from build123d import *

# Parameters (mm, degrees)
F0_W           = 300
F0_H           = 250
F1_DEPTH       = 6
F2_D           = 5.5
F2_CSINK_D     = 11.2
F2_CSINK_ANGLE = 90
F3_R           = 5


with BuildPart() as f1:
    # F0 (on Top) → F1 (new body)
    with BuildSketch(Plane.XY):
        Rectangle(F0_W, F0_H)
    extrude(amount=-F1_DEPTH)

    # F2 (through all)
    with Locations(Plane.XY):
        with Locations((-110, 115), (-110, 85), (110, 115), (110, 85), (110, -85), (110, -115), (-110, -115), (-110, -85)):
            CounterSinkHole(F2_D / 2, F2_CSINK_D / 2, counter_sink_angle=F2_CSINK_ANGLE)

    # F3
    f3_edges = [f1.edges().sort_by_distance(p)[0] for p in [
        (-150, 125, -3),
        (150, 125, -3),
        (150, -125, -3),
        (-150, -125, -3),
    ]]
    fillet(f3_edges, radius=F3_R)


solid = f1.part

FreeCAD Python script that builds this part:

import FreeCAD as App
import Part
import Sketcher
from FreeCAD import Vector


def edges_at(feature, points):
    """Names of the edges that pass closest to the given points."""
    edges = feature.Shape.Edges
    near = lambda p: min(range(len(edges)), key=lambda i: edges[i].distToShape(Part.Vertex(*p))[0])
    return sorted({f"Edge{near(p) + 1}" for p in points})

doc = App.newDocument("Part")
body = doc.addObject("PartDesign::Body", "Body")

# Sketch on XY plane
sketch1 = body.newObject("Sketcher::SketchObject", "Sketch")
sketch1.AttachmentSupport = (doc.getObject("XY_Plane"), [""])
sketch1.MapMode = "FlatFace"
sketch1.addGeometry([
    Part.LineSegment(Vector(-150, 125, 0), Vector(-150, -125, 0)),
    Part.LineSegment(Vector(-150, -125, 0), Vector(150, -125, 0)),
    Part.LineSegment(Vector(150, -125, 0), Vector(150, 125, 0)),
    Part.LineSegment(Vector(150, 125, 0), Vector(-150, 125, 0)),
], False)
sketch1.addConstraint([
    Sketcher.Constraint("Coincident", 0, 2, 1, 1),
    Sketcher.Constraint("Coincident", 1, 2, 2, 1),
    Sketcher.Constraint("Coincident", 2, 2, 3, 1),
    Sketcher.Constraint("Coincident", 3, 2, 0, 1),
    Sketcher.Constraint("Vertical", 0),
    Sketcher.Constraint("Horizontal", 1),
    Sketcher.Constraint("Vertical", 2),
    Sketcher.Constraint("Horizontal", 3),
    Sketcher.Constraint("Symmetric", 0, 2, 2, 2, -1, 1),
    Sketcher.Constraint("DistanceX", 1, 1, 1, 2, 300.0),
    Sketcher.Constraint("DistanceY", 0, 2, 0, 1, 250.0),
])
pad1 = body.newObject("PartDesign::Pad", "Pad")
pad1.Profile = sketch1
pad1.Length = 6
pad1.Reversed = True

# Sketch on XY plane
sketch2 = body.newObject("Sketcher::SketchObject", "Sketch001")
sketch2.AttachmentSupport = (doc.getObject("XY_Plane"), [""])
sketch2.MapMode = "FlatFace"
sketch2.addGeometry([
    Part.Circle(Vector(-110, 115, 0), Vector(0, 0, 1), 2.8),  # 0
    Part.Circle(Vector(-110, 85, 0), Vector(0, 0, 1), 2.8),  # 1
    Part.Circle(Vector(110, 115, 0), Vector(0, 0, 1), 2.8),  # 2
    Part.Circle(Vector(110, 85, 0), Vector(0, 0, 1), 2.8),  # 3
    Part.Circle(Vector(110, -85, 0), Vector(0, 0, 1), 2.8),  # 4
    Part.Circle(Vector(110, -115, 0), Vector(0, 0, 1), 2.8),  # 5
    Part.Circle(Vector(-110, -115, 0), Vector(0, 0, 1), 2.8),  # 6
    Part.Circle(Vector(-110, -85, 0), Vector(0, 0, 1), 2.8),  # 7
], False)
sketch2.addConstraint([
    Sketcher.Constraint("Equal", 0, 1),
    Sketcher.Constraint("Equal", 1, 2),
    Sketcher.Constraint("Equal", 2, 3),
    Sketcher.Constraint("Equal", 3, 4),
    Sketcher.Constraint("Equal", 4, 5),
    Sketcher.Constraint("Equal", 5, 6),
    Sketcher.Constraint("Equal", 6, 7),
    Sketcher.Constraint("Symmetric", 1, 3, 4, 3, -1, 1),
    Sketcher.Constraint("Symmetric", 0, 3, 5, 3, -1, 1),
    Sketcher.Constraint("Symmetric", 2, 3, 6, 3, -1, 1),
    Sketcher.Constraint("Symmetric", 3, 3, 7, 3, -1, 1),
    Sketcher.Constraint("Symmetric", 0, 3, 2, 3, -2),
    Sketcher.Constraint("Symmetric", 1, 3, 3, 3, -2),
    Sketcher.Constraint("Vertical", 0, 3, 1, 3),
    Sketcher.Constraint("Diameter", 0, 5.5),
    Sketcher.Constraint("DistanceX", 0, 3, -1, 1, 110.0),
    Sketcher.Constraint("DistanceY", -1, 1, 0, 3, 115.0),
    Sketcher.Constraint("DistanceY", -1, 1, 1, 3, 85.0),
])
doc.recompute()
hole = body.newObject("PartDesign::Hole", "Hole")
hole.Profile = sketch2
hole.ThreadType = "None"
hole.Diameter = 5.5
hole.DepthType = "ThroughAll"
hole.HoleCutType = "Countersink"
hole.HoleCutDiameter = 11.2
hole.HoleCutCountersinkAngle = 90
doc.recompute()

fillet = body.newObject("PartDesign::Fillet", "Fillet")
fillet.Base = (hole, edges_at(hole, [
    (-150, 125, -3),
    (150, 125, -3),
    (150, -125, -3),
    (-150, -125, -3),
]))
fillet.Radius = 5

doc.recompute()
